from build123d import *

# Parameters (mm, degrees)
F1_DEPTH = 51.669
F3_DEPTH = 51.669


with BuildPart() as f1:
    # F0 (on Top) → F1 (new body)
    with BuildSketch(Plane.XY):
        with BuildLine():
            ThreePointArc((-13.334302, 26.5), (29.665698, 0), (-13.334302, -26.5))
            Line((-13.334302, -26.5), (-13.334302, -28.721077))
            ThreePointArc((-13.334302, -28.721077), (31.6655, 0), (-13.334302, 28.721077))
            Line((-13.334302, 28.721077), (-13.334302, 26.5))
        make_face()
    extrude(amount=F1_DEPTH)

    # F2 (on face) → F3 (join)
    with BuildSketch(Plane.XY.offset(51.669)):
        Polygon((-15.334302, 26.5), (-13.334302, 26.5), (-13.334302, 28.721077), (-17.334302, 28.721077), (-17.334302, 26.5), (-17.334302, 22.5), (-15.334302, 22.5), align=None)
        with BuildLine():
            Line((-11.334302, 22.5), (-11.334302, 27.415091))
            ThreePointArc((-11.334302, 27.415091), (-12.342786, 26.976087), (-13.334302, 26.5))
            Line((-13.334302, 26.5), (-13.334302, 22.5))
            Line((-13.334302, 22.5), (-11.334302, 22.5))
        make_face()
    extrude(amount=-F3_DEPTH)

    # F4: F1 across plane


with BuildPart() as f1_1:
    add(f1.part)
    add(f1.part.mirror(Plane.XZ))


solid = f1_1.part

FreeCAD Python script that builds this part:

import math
import FreeCAD as App
import Part
import Sketcher

doc = App.newDocument("Part")
body = doc.addObject("PartDesign::Body", "Body")

# Sketch on XY plane
sketch1 = body.newObject("Sketcher::SketchObject", "Sketch")
sketch1.AttachmentSupport = (doc.getObject("XY_Plane"), [""])
sketch1.MapMode = "FlatFace"
sketch1.addGeometry([
    Part.ArcOfCircle(Part.Circle(App.Vector(0, 0, 0), App.Vector(0, 0, 1), 29.7), math.radians(-117), math.radians(117)),
    Part.LineSegment(App.Vector(-13.3, -26.5, 0), App.Vector(-13.3, -28.7, 0)),
    Part.ArcOfCircle(Part.Circle(App.Vector(0, 0, 0), App.Vector(0, 0, 1), 31.7), math.radians(-115), math.radians(115)),
    Part.LineSegment(App.Vector(-13.3, 28.7, 0), App.Vector(-13.3, 26.5, 0)),
], False)
sketch1.addConstraint([
    Sketcher.Constraint("Coincident", 0, 1, 1, 1),
    Sketcher.Constraint("Coincident", 1, 2, 2, 1),
    Sketcher.Constraint("Coincident", 2, 2, 3, 1),
    Sketcher.Constraint("Coincident", 3, 2, 0, 2),
    Sketcher.Constraint("Vertical", 1),
    Sketcher.Constraint("Vertical", 3),
    Sketcher.Constraint("Coincident", 0, 3, -1, 1),
    Sketcher.Constraint("Coincident", 2, 3, -1, 1),
    Sketcher.Constraint("Vertical", 1, 2, 2, 2),
    Sketcher.Constraint("DistanceY", 0, 1, 3, 2, 53.0),
    Sketcher.Constraint("Radius", 2, 31.6655),
    Sketcher.Constraint("Radius", 0, 29.665698),
])
pad1 = body.newObject("PartDesign::Pad", "Pad")
pad1.Profile = sketch1
pad1.Length = 51.669

# Sketch on XY plane
sketch2 = body.newObject("Sketcher::SketchObject", "Sketch001")
sketch2.AttachmentSupport = (doc.getObject("XY_Plane"), [""])
sketch2.MapMode = "FlatFace"
sketch2.AttachmentOffset = App.Placement(App.Vector(0, 0, 51.669), App.Rotation())
sketch2.addGeometry([
    Part.LineSegment(App.Vector(-15.3, 26.5, 0), App.Vector(-13.3, 26.5, 0)),  # 0
    Part.LineSegment(App.Vector(-13.3, 26.5, 0), App.Vector(-13.3, 28.7, 0)),  # 1
    Part.LineSegment(App.Vector(-13.3, 28.7, 0), App.Vector(-17.3, 28.7, 0)),  # 2
    Part.LineSegment(App.Vector(-17.3, 28.7, 0), App.Vector(-17.3, 22.5, 0)),  # 3
    Part.LineSegment(App.Vector(-17.3, 22.5, 0), App.Vector(-15.3, 22.5, 0)),  # 4
    Part.LineSegment(App.Vector(-15.3, 22.5, 0), App.Vector(-15.3, 26.5, 0)),  # 5
    Part.LineSegment(App.Vector(-11.3, 22.5, 0), App.Vector(-11.3, 27.4, 0)),  # 6
    Part.ArcOfCircle(Part.Circle(App.Vector(0, 0, 0), App.Vector(0, 0, 1), 29.7), math.radians(112.46), math.radians(116.71)),  # 7
    Part.LineSegment(App.Vector(-13.3, 26.5, 0), App.Vector(-13.3, 22.5, 0)),  # 8
    Part.LineSegment(App.Vector(-13.3, 22.5, 0), App.Vector(-11.3, 22.5, 0)),  # 9
], False)
sketch2.addConstraint([
    Sketcher.Constraint("Coincident", 0, 2, 1, 1),
    Sketcher.Constraint("Coincident", 1, 2, 2, 1),
    Sketcher.Constraint("Coincident", 2, 2, 3, 1),
    Sketcher.Constraint("Coincident", 3, 2, 4, 1),
    Sketcher.Constraint("Coincident", 4, 2, 5, 1),
    Sketcher.Constraint("Coincident", 5, 2, 0, 1),
    Sketcher.Constraint("Coincident", 6, 2, 7, 1),
    Sketcher.Constraint("Coincident", 7, 2, 8, 1),
    Sketcher.Constraint("Coincident", 8, 2, 9, 1),
    Sketcher.Constraint("Coincident", 9, 2, 6, 1),
    Sketcher.Constraint("Horizontal", 0),
    Sketcher.Constraint("Vertical", 1),
    Sketcher.Constraint("Horizontal", 2),
    Sketcher.Constraint("Vertical", 3),
    Sketcher.Constraint("Horizontal", 4),
    Sketcher.Constraint("Vertical", 5),
    Sketcher.Constraint("Vertical", 6),
    Sketcher.Constraint("Vertical", 8),
    Sketcher.Constraint("Horizontal", 9),
    Sketcher.Constraint("Coincident", 7, 2, 0, 2),
    Sketcher.Constraint("Horizontal", 4, 2, 8, 2),
    Sketcher.Constraint("Equal", 0, 4),
    Sketcher.Constraint("Equal", 4, 9),
    Sketcher.Constraint("Equal", 2, 5),
    Sketcher.Constraint("DistanceX", 0, 1, 0, 2, 2.0),
    Sketcher.Constraint("DistanceY", -1, 1, 0, 2, 26.5),
    Sketcher.Constraint("Radius", 7, 29.665135),
    Sketcher.Constraint("DistanceY", 6, 1, 6, 2, 4.915091),
    Sketcher.Constraint("DistanceX", 0, 2, -1, 1, 13.334302),
    Sketcher.Constraint("DistanceY", 1, 1, 1, 2, 2.221077),
])
pad2 = body.newObject("PartDesign::Pad", "Pad001")
pad2.Profile = sketch2
pad2.Length = 51.669
pad2.Reversed = True
body2 = doc.addObject("PartDesign::Body", "Body001")
doc.recompute()

body2.BaseFeature = body
doc.recompute()

mirroring = doc.addObject("Part::Mirroring", "Mirroring")
mirroring.Source = body
mirroring.Base = App.Vector(0, 0, 0)
mirroring.Normal = App.Vector(0, -1, 0)
body3 = doc.addObject("PartDesign::Body", "Body002")
body3.BaseFeature = mirroring
boolean = body2.newObject("PartDesign::Boolean", "Boolean")
boolean.Type = "Fuse"
boolean.addObjects([body3])
doc.recompute()
mirroring.Visibility = False

doc.recompute()
